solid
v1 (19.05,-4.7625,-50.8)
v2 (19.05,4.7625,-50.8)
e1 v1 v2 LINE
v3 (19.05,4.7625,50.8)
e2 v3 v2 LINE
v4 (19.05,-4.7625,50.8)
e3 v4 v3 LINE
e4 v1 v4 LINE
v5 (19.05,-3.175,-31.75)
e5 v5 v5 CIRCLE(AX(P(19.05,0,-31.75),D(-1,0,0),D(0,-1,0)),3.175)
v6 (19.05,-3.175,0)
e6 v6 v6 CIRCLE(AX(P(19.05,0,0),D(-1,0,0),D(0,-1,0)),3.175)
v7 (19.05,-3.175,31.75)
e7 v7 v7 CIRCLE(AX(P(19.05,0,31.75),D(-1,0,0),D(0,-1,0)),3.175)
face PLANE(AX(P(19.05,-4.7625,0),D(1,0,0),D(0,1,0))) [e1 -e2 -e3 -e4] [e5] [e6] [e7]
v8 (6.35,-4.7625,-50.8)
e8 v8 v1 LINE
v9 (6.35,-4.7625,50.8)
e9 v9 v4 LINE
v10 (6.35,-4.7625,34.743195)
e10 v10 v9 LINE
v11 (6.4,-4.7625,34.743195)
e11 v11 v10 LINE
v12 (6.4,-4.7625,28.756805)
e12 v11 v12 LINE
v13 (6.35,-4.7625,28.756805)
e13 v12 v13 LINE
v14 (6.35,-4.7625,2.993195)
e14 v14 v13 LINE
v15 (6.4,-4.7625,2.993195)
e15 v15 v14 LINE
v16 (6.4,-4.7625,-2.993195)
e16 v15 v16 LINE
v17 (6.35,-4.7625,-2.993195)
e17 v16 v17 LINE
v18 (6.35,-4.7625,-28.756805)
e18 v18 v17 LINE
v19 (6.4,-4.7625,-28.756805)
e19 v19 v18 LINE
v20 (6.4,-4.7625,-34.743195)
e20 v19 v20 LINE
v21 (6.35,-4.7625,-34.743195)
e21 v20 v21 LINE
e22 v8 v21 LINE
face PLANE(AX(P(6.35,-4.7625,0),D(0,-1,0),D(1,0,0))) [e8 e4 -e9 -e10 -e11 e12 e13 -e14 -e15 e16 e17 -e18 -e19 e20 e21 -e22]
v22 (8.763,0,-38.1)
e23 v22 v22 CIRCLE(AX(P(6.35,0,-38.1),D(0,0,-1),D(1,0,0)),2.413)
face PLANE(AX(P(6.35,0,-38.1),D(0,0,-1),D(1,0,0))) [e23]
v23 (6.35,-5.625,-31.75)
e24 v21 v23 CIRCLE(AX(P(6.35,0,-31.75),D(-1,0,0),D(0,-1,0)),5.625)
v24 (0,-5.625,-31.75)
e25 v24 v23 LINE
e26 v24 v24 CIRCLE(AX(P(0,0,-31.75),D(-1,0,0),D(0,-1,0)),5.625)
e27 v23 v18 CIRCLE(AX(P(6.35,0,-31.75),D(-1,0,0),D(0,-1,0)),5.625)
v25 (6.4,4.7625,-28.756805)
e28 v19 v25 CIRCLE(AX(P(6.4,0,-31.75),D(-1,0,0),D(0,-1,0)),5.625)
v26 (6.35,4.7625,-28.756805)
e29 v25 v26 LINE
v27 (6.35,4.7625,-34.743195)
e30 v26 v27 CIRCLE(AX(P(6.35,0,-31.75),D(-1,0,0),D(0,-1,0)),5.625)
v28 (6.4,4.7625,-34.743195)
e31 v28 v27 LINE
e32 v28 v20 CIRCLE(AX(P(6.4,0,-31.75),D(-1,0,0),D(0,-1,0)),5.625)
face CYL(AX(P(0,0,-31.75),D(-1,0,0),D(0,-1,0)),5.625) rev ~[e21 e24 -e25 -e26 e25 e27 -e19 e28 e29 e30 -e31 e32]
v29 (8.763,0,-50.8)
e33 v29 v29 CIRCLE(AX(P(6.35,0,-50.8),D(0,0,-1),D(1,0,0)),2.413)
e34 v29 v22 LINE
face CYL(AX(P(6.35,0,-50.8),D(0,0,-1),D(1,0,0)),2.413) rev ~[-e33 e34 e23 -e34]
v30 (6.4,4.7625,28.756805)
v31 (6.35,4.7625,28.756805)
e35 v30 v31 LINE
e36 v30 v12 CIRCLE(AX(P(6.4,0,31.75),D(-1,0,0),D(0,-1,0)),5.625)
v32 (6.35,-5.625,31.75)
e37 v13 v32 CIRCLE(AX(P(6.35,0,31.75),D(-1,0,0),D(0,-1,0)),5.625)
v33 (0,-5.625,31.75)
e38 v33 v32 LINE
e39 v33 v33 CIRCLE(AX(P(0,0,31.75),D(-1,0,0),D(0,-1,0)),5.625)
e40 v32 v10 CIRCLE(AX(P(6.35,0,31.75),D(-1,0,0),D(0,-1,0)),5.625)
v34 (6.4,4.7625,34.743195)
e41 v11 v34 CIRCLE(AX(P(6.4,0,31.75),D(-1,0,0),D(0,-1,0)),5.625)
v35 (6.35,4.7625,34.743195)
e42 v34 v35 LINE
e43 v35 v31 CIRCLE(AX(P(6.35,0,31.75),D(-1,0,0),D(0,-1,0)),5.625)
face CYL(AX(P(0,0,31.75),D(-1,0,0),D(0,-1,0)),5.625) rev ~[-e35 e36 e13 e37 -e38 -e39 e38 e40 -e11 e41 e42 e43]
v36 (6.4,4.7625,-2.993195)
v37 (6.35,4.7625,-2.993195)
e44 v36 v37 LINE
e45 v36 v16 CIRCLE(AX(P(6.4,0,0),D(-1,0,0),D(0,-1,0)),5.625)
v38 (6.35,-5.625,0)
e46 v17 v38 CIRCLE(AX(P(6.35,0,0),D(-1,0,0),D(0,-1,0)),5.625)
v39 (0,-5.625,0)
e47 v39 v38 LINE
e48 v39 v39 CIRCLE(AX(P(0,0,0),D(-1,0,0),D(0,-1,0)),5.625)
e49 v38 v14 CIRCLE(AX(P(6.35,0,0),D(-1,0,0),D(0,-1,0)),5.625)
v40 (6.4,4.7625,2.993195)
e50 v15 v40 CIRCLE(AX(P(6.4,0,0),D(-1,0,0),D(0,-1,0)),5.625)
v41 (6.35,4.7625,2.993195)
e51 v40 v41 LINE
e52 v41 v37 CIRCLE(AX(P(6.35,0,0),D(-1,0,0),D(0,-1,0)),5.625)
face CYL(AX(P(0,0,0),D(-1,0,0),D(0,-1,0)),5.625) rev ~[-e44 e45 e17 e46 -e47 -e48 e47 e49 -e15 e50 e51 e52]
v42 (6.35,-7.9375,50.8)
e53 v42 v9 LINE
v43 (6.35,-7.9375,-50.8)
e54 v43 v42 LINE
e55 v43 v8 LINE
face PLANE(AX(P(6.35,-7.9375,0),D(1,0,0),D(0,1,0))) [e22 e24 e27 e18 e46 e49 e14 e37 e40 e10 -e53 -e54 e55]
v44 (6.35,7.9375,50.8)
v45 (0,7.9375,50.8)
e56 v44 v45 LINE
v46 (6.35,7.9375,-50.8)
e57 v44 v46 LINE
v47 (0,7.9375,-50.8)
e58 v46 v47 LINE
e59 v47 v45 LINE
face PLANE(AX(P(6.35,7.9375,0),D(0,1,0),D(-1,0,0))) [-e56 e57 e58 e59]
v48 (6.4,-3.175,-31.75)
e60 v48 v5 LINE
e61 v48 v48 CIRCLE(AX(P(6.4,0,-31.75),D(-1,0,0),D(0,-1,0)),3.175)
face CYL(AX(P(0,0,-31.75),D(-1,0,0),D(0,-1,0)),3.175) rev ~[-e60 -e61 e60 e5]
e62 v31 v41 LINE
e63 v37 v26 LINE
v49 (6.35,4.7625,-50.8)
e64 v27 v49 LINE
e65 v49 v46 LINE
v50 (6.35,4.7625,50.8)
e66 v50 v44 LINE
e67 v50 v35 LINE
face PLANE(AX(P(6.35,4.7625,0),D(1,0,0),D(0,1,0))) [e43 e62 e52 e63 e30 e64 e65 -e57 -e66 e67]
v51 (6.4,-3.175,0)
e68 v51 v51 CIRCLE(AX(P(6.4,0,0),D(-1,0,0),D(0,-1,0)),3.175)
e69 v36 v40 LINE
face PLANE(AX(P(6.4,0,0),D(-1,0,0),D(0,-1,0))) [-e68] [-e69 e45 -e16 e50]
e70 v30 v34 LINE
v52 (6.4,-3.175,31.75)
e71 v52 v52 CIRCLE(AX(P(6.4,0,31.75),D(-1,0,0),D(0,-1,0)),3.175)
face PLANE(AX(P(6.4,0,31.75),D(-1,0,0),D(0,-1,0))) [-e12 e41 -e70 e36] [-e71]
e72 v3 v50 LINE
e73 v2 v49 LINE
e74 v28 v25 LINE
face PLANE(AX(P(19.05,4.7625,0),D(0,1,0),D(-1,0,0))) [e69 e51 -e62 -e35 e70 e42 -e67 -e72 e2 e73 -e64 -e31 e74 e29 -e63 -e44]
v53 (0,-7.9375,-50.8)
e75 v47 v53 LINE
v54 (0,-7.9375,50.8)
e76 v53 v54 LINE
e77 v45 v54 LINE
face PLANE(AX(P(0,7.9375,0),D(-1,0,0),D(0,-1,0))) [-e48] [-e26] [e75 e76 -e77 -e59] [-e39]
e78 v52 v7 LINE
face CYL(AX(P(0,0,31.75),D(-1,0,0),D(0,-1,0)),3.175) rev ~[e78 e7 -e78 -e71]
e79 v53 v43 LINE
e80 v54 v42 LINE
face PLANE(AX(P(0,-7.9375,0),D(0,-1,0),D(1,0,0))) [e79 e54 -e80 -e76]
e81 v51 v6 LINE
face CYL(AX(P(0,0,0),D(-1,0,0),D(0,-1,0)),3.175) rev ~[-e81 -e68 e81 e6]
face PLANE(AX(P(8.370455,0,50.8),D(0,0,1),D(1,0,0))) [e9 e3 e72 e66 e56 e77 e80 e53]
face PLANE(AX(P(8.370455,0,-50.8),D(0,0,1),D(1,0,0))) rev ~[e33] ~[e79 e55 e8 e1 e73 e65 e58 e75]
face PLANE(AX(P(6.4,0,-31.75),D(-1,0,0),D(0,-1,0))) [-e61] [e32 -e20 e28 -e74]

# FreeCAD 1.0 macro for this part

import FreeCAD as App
import Part
import Sketcher

V = App.Vector
Q = App.Units.Quantity


def add_polygon(sketch, points):
    """Adds a closed chain of lines whose ends are joined by coincident constraints."""
    first, n = sketch.GeometryCount, len(points)
    for a, b in zip(points, points[1:] + points[:1]):
        sketch.addGeometry(Part.LineSegment(App.Vector(*a, 0), App.Vector(*b, 0)), False)
    for i in range(n):
        sketch.addConstraint(Sketcher.Constraint("Coincident", first + i, 2, first + (i + 1) % n, 1))

doc = App.newDocument("Part")
body = doc.addObject("PartDesign::Body", "Body")

sketch1 = body.newObject("Sketcher::SketchObject", "Sketch")
sketch1.AttachmentSupport = (doc.getObject("XY_Plane"), [""])
sketch1.MapMode = "FlatFace"
add_polygon(sketch1, [(6.3, 7.9), (0, 7.9), (0, -7.9), (6.3, -7.9), (6.3, -4.8), (19.1, -4.8), (19.1, 4.8), (6.3, 4.8)])
sketch1.addConstraint([
    Sketcher.Constraint("Horizontal", 0),
    Sketcher.Constraint("Vertical", 1),
    Sketcher.Constraint("Horizontal", 2),
    Sketcher.Constraint("Vertical", 3),
    Sketcher.Constraint("Horizontal", 4),
    Sketcher.Constraint("Vertical", 5),
    Sketcher.Constraint("Horizontal", 6),
    Sketcher.Constraint("Vertical", 7),
    Sketcher.Constraint("Symmetric", 0, 2, 1, 2, -1, 1),
    Sketcher.Constraint("Symmetric", 3, 2, 6, 2, -1),
    Sketcher.Constraint("DistanceX", 4, 1, 4, 2, Q("0.5 in")),
    Sketcher.Constraint("DistanceX", 0, 2, 0, 1, Q("0.25 in")),
    Sketcher.Constraint("DistanceY", 3, 2, 0, 2, Q("0.5 in")),
    Sketcher.Constraint("DistanceY", 1, 2, 1, 1, Q("0.625 in")),
])
pad1 = body.newObject("PartDesign::Pad", "Pad")
pad1.Profile = sketch1
pad1.Length = Q("4 in")
pad1.Midplane = True

sketch2 = body.newObject("Sketcher::SketchObject", "Sketch001")
sketch2.AttachmentSupport = (doc.getObject("YZ_Plane"), [""])
sketch2.MapMode = "FlatFace"
sketch2.addGeometry([
    Part.Circle(V(0, 31.8, 0), V(0, 0, 1), 3.2),
    Part.Circle(V(0, 0, 0), V(0, 0, 1), 3.2),
    Part.Circle(V(0, -31.8, 0), V(0, 0, 1), 3.2),
], False)
sketch2.addConstraint([
    Sketcher.Constraint("Coincident", 1, 3, -1, 1),
    Sketcher.Constraint("Equal", 0, 1),
    Sketcher.Constraint("Equal", 1, 2),
    Sketcher.Constraint("Symmetric", 0, 3, 2, 3, -1, 1),
    Sketcher.Constraint("PointOnObject", 0, 3, -2),
    Sketcher.Constraint("Diameter", 0, Q("0.25 in")),
    Sketcher.Constraint("DistanceY", 2, 3, 0, 3, Q("2.5 in")),
])
pocket1 = body.newObject("PartDesign::Pocket", "Pocket")
pocket1.Profile = sketch2
pocket1.Type = "ThroughAll"
pocket1.Reversed = True

sketch3 = body.newObject("Sketcher::SketchObject", "Sketch002")
sketch3.AttachmentSupport = (doc.getObject("YZ_Plane"), [""])
sketch3.MapMode = "FlatFace"
sketch3.addGeometry([
    Part.Circle(V(0, 32, 0), V(0, 0, 1), 6),
    Part.Circle(V(0, 0, 0), V(0, 0, 1), 6),
    Part.Circle(V(0, -32, 0), V(0, 0, 1), 6),
], False)
sketch3.addConstraint([
    Sketcher.Constraint("Coincident", 1, 3, -1, 1),
    Sketcher.Constraint("Equal", 0, 1),
    Sketcher.Constraint("Equal", 1, 2),
    Sketcher.Constraint("Symmetric", 0, 3, 2, 3, -1, 1),
    Sketcher.Constraint("PointOnObject", 0, 3, -2),
    Sketcher.Constraint("DistanceY", 2, 3, 0, 3, Q("2.5 in")),
    Sketcher.Constraint("Diameter", 0, Q("11.25 mm")),
])
pocket2 = body.newObject("PartDesign::Pocket", "Pocket001")
pocket2.Profile = sketch3
pocket2.Length = 6.4
pocket2.Reversed = True

sketch4 = body.newObject("Sketcher::SketchObject", "Sketch003")
sketch4.AttachmentSupport = (doc.getObject("XY_Plane"), [""])
sketch4.MapMode = "FlatFace"
sketch4.AttachmentOffset = App.Placement(V(0, 0, -2 * 25.4), App.Rotation())
sketch4.addGeometry(Part.Circle(V(6.3, 0, 0), V(0, 0, 1), 2.4), False)
sketch4.addConstraint([
    Sketcher.Constraint("PointOnObject", 0, 3, -1),
    Sketcher.Constraint("Diameter", 0, Q("0.19 in")),
    Sketcher.Constraint("DistanceX", -1, 1, 0, 3, Q("0.25 in")),
])
pocket3 = body.newObject("PartDesign::Pocket", "Pocket002")
pocket3.Profile = sketch4
pocket3.Length = Q("0.5 in")
pocket3.Reversed = True

doc.recompute()
